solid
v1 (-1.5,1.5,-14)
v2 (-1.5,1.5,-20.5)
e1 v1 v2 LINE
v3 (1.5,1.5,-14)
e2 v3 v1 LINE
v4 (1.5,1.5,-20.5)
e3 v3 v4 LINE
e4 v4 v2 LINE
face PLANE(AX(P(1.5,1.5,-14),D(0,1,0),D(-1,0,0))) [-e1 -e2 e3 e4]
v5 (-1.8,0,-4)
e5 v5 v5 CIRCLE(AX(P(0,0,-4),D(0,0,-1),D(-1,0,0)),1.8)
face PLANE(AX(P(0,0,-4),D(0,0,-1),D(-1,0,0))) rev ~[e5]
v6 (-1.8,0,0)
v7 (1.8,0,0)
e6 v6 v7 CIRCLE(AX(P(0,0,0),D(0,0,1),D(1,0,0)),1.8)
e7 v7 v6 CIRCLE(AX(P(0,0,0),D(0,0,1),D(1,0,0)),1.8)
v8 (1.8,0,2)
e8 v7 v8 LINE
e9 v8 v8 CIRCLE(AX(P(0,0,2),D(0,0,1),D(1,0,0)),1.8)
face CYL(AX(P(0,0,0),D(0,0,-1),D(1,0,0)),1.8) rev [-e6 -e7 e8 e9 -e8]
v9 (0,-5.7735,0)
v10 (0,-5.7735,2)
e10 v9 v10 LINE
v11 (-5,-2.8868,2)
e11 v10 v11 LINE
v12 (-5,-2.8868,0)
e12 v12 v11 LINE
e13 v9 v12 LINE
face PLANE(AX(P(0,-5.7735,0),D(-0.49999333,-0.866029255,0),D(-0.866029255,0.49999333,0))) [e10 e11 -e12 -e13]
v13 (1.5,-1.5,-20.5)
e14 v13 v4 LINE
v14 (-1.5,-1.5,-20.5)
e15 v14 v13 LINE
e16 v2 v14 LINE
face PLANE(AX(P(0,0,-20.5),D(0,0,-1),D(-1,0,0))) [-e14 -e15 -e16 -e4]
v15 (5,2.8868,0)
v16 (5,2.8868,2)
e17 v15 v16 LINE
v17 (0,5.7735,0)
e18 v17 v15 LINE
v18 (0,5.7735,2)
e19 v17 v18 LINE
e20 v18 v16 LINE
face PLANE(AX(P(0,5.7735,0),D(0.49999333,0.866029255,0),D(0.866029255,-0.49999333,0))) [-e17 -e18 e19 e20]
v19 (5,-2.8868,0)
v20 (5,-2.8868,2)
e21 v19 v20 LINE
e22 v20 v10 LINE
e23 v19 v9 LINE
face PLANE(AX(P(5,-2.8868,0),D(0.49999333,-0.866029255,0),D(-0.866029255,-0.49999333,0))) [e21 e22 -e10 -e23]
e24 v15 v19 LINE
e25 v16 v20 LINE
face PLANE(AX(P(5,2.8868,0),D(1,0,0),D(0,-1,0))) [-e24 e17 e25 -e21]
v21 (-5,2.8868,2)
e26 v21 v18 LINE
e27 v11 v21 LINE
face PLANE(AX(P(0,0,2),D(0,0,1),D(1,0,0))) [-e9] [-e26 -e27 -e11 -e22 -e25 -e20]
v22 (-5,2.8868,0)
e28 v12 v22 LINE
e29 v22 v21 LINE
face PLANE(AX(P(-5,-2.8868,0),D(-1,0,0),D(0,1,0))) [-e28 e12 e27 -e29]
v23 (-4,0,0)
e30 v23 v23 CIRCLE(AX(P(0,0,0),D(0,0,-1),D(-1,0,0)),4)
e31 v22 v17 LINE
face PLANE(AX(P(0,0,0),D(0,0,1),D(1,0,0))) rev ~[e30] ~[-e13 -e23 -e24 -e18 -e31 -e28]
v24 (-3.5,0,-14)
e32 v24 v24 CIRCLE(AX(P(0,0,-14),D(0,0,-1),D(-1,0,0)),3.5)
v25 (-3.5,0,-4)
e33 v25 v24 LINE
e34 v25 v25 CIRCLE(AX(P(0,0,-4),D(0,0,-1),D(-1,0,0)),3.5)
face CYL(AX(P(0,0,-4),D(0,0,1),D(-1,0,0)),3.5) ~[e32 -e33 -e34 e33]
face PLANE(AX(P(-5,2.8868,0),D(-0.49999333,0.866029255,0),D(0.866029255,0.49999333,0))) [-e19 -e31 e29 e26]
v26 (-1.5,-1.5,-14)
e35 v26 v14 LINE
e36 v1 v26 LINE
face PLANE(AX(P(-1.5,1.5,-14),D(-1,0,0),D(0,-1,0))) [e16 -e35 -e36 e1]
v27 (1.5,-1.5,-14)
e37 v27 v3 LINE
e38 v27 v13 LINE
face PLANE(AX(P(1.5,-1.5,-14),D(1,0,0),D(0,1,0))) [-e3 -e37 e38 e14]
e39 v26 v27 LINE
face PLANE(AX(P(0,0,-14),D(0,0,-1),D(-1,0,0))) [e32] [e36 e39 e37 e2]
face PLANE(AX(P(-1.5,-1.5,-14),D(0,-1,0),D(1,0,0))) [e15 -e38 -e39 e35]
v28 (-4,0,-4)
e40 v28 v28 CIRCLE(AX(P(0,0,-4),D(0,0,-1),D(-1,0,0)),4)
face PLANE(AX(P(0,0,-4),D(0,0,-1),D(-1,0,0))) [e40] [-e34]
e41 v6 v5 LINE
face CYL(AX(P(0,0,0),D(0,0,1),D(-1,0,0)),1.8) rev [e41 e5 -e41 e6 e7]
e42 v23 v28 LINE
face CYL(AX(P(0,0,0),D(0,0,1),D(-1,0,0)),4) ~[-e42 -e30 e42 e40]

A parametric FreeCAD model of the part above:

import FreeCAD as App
import Part
import Sketcher
Q = App.Units.Quantity

doc = App.newDocument("Part")
params = doc.addObject("Spreadsheet::Sheet", "Params")
for row, (alias, value) in enumerate([
    ("sketch1_diameter", "3.6 mm"),
    ("pad1_length", "2 mm"),
    ("sketch2_diameter", "8 mm"),
    ("sketch2_diameter2", "3.6 mm"),
    ("pad2_length", "4 mm"),
    ("sketch3_diameter", "7 mm"),
    ("pad3_length", "10 mm"),
    ("sketch4_width", "3 mm"),
    ("pad4_length", "6.5 mm"),
], start=1):
    params.set(f"A{row}", alias)
    params.set(f"B{row}", "=" + value)
    params.setAlias(f"B{row}", alias)

body = doc.addObject("PartDesign::Body", "Body")

sketch1 = body.newObject("Sketcher::SketchObject", "Sketch")
sketch1.AttachmentSupport = (doc.getObject("XY_Plane"), [""])
sketch1.MapMode = "FlatFace"
sketch1.addGeometry(Part.LineSegment(App.Vector(5, 2.9, 0), App.Vector(0, 5.8, 0)), False)
sketch1.addGeometry(Part.LineSegment(App.Vector(0, 5.8, 0), App.Vector(-5, 2.9, 0)), False)
sketch1.addGeometry(Part.LineSegment(App.Vector(-5, 2.9, 0), App.Vector(-5, -2.9, 0)), False)
sketch1.addGeometry(Part.LineSegment(App.Vector(-5, -2.9, 0), App.Vector(0, -5.8, 0)), False)
sketch1.addGeometry(Part.LineSegment(App.Vector(0, -5.8, 0), App.Vector(5, -2.9, 0)), False)
sketch1.addGeometry(Part.LineSegment(App.Vector(5, -2.9, 0), App.Vector(5, 2.9, 0)), False)
sketch1.addGeometry(Part.Circle(App.Vector(0, 0, 0), App.Vector(0, 0, 1), 1.8), False)
sketch1.addConstraint(Sketcher.Constraint("Coincident", 0, 2, 1, 1))
sketch1.addConstraint(Sketcher.Constraint("Coincident", 1, 2, 2, 1))
sketch1.addConstraint(Sketcher.Constraint("Coincident", 2, 2, 3, 1))
sketch1.addConstraint(Sketcher.Constraint("Coincident", 3, 2, 4, 1))
sketch1.addConstraint(Sketcher.Constraint("Coincident", 4, 2, 5, 1))
sketch1.addConstraint(Sketcher.Constraint("Coincident", 5, 2, 0, 1))
sketch1.addConstraint(Sketcher.Constraint("Vertical", 2))
sketch1.addConstraint(Sketcher.Constraint("Vertical", 5))
sketch1.addConstraint(Sketcher.Constraint("Coincident", 6, 3, -1, 1))
sketch1.addConstraint(Sketcher.Constraint("Symmetric", 0, 2, 3, 2, -1, 1))
sketch1.addConstraint(Sketcher.Constraint("Symmetric", 1, 2, 4, 2, -1, 1))
sketch1.addConstraint(Sketcher.Constraint("PointOnObject", 0, 2, -2))
sketch1.addConstraint(Sketcher.Constraint("Parallel", 0, 3))
sketch1.addConstraint(Sketcher.Constraint("Horizontal", 2, 2, 4, 2))
sketch1.addConstraint(Sketcher.Constraint("Diameter", 6, 3.6))
sketch1.addConstraint(Sketcher.Constraint("DistanceX", 2, 2, 4, 2, 10.0))
sketch1.addConstraint(Sketcher.Constraint("Angle", 0, Q("150.0004 deg")))
sketch1.addConstraint(Sketcher.Constraint("DistanceY", 2, 2, 2, 1, 5.7736))
sketch1.setExpression("Constraints[14]", "Params.sketch1_diameter")
pad1 = body.newObject("PartDesign::Pad", "Pad")
pad1.Profile = sketch1
pad1.setExpression("Length", "Params.pad1_length")

sketch2 = body.newObject("Sketcher::SketchObject", "Sketch001")
sketch2.AttachmentSupport = (doc.getObject("XY_Plane"), [""])
sketch2.MapMode = "FlatFace"
sketch2.addGeometry(Part.Circle(App.Vector(0, 0, 0), App.Vector(0, 0, 1), 4), False)
sketch2.addGeometry(Part.Circle(App.Vector(0, 0, 0), App.Vector(0, 0, 1), 1.8), False)
sketch2.addConstraint(Sketcher.Constraint("Coincident", 0, 3, -1, 1))
sketch2.addConstraint(Sketcher.Constraint("Coincident", 1, 3, -1, 1))
sketch2.addConstraint(Sketcher.Constraint("Diameter", 0, 8.0))
sketch2.addConstraint(Sketcher.Constraint("Diameter", 1, 3.6))
sketch2.setExpression("Constraints[2]", "Params.sketch2_diameter")
sketch2.setExpression("Constraints[3]", "Params.sketch2_diameter2")
pad2 = body.newObject("PartDesign::Pad", "Pad001")
pad2.Profile = sketch2
pad2.setExpression("Length", "Params.pad2_length")
pad2.Reversed = True

sketch3 = body.newObject("Sketcher::SketchObject", "Sketch002")
sketch3.AttachmentSupport = (doc.getObject("XY_Plane"), [""])
sketch3.MapMode = "FlatFace"
sketch3.AttachmentOffset = App.Placement(App.Vector(0, 0, -4), App.Rotation())
sketch3.addGeometry(Part.Circle(App.Vector(0, 0, 0), App.Vector(0, 0, 1), 3.5), False)
sketch3.addConstraint(Sketcher.Constraint("Coincident", 0, 3, -1, 1))
sketch3.addConstraint(Sketcher.Constraint("Diameter", 0, 7.0))
sketch3.setExpression("Constraints[1]", "Params.sketch3_diameter")
pad3 = body.newObject("PartDesign::Pad", "Pad002")
pad3.Profile = sketch3
pad3.setExpression("Length", "Params.pad3_length")
pad3.Reversed = True

sketch4 = body.newObject("Sketcher::SketchObject", "Sketch003")
sketch4.AttachmentSupport = (doc.getObject("XY_Plane"), [""])
sketch4.MapMode = "FlatFace"
sketch4.AttachmentOffset = App.Placement(App.Vector(0, 0, -14), App.Rotation())
sketch4.addGeometry(Part.LineSegment(App.Vector(1.5, -1.5, 0), App.Vector(-1.5, -1.5, 0)), False)
sketch4.addGeometry(Part.LineSegment(App.Vector(-1.5, -1.5, 0), App.Vector(-1.5, 1.5, 0)), False)
sketch4.addGeometry(Part.LineSegment(App.Vector(-1.5, 1.5, 0), App.Vector(1.5, 1.5, 0)), False)
sketch4.addGeometry(Part.LineSegment(App.Vector(1.5, 1.5, 0), App.Vector(1.5, -1.5, 0)), False)
sketch4.addConstraint(Sketcher.Constraint("Coincident", 0, 2, 1, 1))
sketch4.addConstraint(Sketcher.Constraint("Coincident", 1, 2, 2, 1))
sketch4.addConstraint(Sketcher.Constraint("Coincident", 2, 2, 3, 1))
sketch4.addConstraint(Sketcher.Constraint("Coincident", 3, 2, 0, 1))
sketch4.addConstraint(Sketcher.Constraint("Horizontal", 0))
sketch4.addConstraint(Sketcher.Constraint("Vertical", 1))
sketch4.addConstraint(Sketcher.Constraint("Horizontal", 2))
sketch4.addConstraint(Sketcher.Constraint("Vertical", 3))
sketch4.addConstraint(Sketcher.Constraint("Symmetric", 0, 2, 2, 2, -1, 1))
sketch4.addConstraint(Sketcher.Constraint("Equal", 2, 1))
sketch4.addConstraint(Sketcher.Constraint("DistanceX", 0, 2, 0, 1, 3.0))
sketch4.setExpression("Constraints[10]", "Params.sketch4_width")
pad4 = body.newObject("PartDesign::Pad", "Pad003")
pad4.Profile = sketch4
pad4.setExpression("Length", "Params.pad4_length")
pad4.Reversed = True

doc.recompute()
